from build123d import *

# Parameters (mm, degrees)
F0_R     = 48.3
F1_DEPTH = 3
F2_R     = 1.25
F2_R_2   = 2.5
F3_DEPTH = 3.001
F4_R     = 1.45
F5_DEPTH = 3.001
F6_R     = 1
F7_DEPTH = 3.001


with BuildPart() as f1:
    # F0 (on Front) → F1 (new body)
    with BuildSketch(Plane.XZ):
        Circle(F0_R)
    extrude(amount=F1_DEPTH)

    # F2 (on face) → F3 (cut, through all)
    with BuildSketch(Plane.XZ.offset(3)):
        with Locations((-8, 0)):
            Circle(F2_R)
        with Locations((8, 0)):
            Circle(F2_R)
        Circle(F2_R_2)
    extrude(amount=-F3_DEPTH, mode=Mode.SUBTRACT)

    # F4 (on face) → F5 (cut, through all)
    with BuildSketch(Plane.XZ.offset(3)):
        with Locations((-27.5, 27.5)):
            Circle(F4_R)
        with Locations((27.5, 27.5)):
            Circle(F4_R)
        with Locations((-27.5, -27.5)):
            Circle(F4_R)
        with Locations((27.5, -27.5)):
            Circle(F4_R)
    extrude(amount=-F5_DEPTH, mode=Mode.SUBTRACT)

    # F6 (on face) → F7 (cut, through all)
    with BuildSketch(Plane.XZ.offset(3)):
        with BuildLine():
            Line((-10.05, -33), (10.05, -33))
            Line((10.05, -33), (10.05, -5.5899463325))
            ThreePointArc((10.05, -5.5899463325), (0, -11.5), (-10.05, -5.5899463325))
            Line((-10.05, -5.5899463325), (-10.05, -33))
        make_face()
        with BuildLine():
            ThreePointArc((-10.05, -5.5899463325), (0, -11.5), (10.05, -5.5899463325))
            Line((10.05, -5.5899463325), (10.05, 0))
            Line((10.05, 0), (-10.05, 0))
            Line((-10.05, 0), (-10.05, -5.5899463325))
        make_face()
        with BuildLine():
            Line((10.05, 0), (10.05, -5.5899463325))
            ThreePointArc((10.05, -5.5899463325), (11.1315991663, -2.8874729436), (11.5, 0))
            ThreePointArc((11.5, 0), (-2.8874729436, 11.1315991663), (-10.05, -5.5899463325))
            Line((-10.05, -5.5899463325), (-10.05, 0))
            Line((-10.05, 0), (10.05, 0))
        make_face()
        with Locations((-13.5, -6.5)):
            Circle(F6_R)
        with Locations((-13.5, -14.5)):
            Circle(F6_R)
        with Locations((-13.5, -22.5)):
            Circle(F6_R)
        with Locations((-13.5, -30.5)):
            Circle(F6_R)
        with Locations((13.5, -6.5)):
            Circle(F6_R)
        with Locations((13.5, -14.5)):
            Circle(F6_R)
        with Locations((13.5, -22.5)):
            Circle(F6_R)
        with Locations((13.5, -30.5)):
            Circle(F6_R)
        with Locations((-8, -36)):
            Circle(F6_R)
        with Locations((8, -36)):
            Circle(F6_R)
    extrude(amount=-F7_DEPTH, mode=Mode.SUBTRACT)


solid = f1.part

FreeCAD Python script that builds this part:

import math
import FreeCAD as App
import Part
import Sketcher
from FreeCAD import Vector
Q = App.Units.Quantity

doc = App.newDocument("Part")
body = doc.addObject("PartDesign::Body", "Body")

sketch1 = body.newObject("Sketcher::SketchObject", "Sketch")
sketch1.AttachmentSupport = (doc.getObject("XZ_Plane"), [""])
sketch1.MapMode = "FlatFace"
sketch1.addGeometry(Part.Circle(Vector(0, 0, 0), Vector(0, 0, 1), 48.3), False)
sketch1.addConstraint([
    Sketcher.Constraint("Coincident", 0, 3, -1, 1),
    Sketcher.Constraint("Diameter", 0, Q("96.6 mm")),
])
pad1 = body.newObject("PartDesign::Pad", "Pad")
pad1.Profile = sketch1
pad1.Length = 3

sketch2 = body.newObject("Sketcher::SketchObject", "Sketch001")
sketch2.AttachmentSupport = (doc.getObject("XZ_Plane"), [""])
sketch2.MapMode = "FlatFace"
sketch2.AttachmentOffset = App.Placement(Vector(0, 0, 3), App.Rotation())
sketch2.addGeometry([
    Part.Circle(Vector(-8, 0, 0), Vector(0, 0, 1), 1.25),
    Part.Circle(Vector(8, 0, 0), Vector(0, 0, 1), 1.25),
    Part.Circle(Vector(0, 0, 0), Vector(0, 0, 1), 2.5),
], False)
sketch2.addConstraint([
    Sketcher.Constraint("Coincident", 2, 3, -1, 1),
    Sketcher.Constraint("Equal", 0, 1),
    Sketcher.Constraint("Symmetric", 0, 3, 1, 3, -1, 1),
    Sketcher.Constraint("PointOnObject", 0, 3, -1),
    Sketcher.Constraint("Diameter", 2, Q("5 mm")),
    Sketcher.Constraint("Diameter", 0, Q("2.5 mm")),
    Sketcher.Constraint("DistanceX", 0, 3, -1, 1, Q("8 mm")),
])
pocket1 = body.newObject("PartDesign::Pocket", "Pocket")
pocket1.Profile = sketch2
pocket1.Type = "ThroughAll"

sketch3 = body.newObject("Sketcher::SketchObject", "Sketch002")
sketch3.AttachmentSupport = (doc.getObject("XZ_Plane"), [""])
sketch3.MapMode = "FlatFace"
sketch3.AttachmentOffset = App.Placement(Vector(0, 0, 3), App.Rotation())
sketch3.addGeometry([
    Part.Circle(Vector(-27.5, 27.5, 0), Vector(0, 0, 1), 1.45),
    Part.Circle(Vector(27.5, 27.5, 0), Vector(0, 0, 1), 1.45),
    Part.Circle(Vector(-27.5, -27.5, 0), Vector(0, 0, 1), 1.45),
    Part.Circle(Vector(27.5, -27.5, 0), Vector(0, 0, 1), 1.45),
], False)
sketch3.addConstraint([
    Sketcher.Constraint("Equal", 0, 1),
    Sketcher.Constraint("Equal", 1, 2),
    Sketcher.Constraint("Equal", 2, 3),
    Sketcher.Constraint("Symmetric", 1, 3, 2, 3, -1, 1),
    Sketcher.Constraint("Symmetric", 0, 3, 3, 3, -1, 1),
    Sketcher.Constraint("Symmetric", 0, 3, 1, 3, -2),
    Sketcher.Constraint("Diameter", 0, Q("2.9 mm")),
    Sketcher.Constraint("DistanceX", 0, 3, 1, 3, Q("55 mm")),
    Sketcher.Constraint("DistanceY", 2, 3, 0, 3, Q("55 mm")),
])
pocket2 = body.newObject("PartDesign::Pocket", "Pocket001")
pocket2.Profile = sketch3
pocket2.Type = "ThroughAll"

sketch4 = body.newObject("Sketcher::SketchObject", "Sketch003")
sketch4.AttachmentSupport = (doc.getObject("XZ_Plane"), [""])
sketch4.MapMode = "FlatFace"
sketch4.AttachmentOffset = App.Placement(Vector(0, 0, 3), App.Rotation())
sketch4.addGeometry([
    Part.LineSegment(Vector(-10.05, -33, 0), Vector(10.05, -33, 0)),
    Part.LineSegment(Vector(10.05, -33, 0), Vector(10.05, -5.589946, 0)),
    Part.ArcOfCircle(Part.Circle(Vector(0, 0, 0), Vector(0, 0, 1), 11.5), math.radians(-29.083405), math.radians(0)),
    Part.ArcOfCircle(Part.Circle(Vector(0, 0, 0), Vector(0, 0, 1), 11.5), math.radians(0), math.radians(209.083405)),
    Part.LineSegment(Vector(-10.05, -5.589946, 0), Vector(-10.05, -33, 0)),
    Part.Circle(Vector(-13.5, -6.5, 0), Vector(0, 0, 1), 1),
    Part.Circle(Vector(-13.5, -14.5, 0), Vector(0, 0, 1), 1),
    Part.Circle(Vector(-13.5, -22.5, 0), Vector(0, 0, 1), 1),
    Part.Circle(Vector(-13.5, -30.5, 0), Vector(0, 0, 1), 1),
    Part.Circle(Vector(13.5, -6.5, 0), Vector(0, 0, 1), 1),
    Part.Circle(Vector(13.5, -14.5, 0), Vector(0, 0, 1), 1),
    Part.Circle(Vector(13.5, -22.5, 0), Vector(0, 0, 1), 1),
    Part.Circle(Vector(13.5, -30.5, 0), Vector(0, 0, 1), 1),
    Part.Circle(Vector(-8, -36, 0), Vector(0, 0, 1), 1),
    Part.Circle(Vector(8, -36, 0), Vector(0, 0, 1), 1),
], False)
sketch4.addConstraint([
    Sketcher.Constraint("Coincident", 0, 2, 1, 1),
    Sketcher.Constraint("Coincident", 1, 2, 2, 1),
    Sketcher.Constraint("Tangent", 2, 2, 3, 1),
    Sketcher.Constraint("Coincident", 3, 2, 4, 1),
    Sketcher.Constraint("Coincident", 4, 2, 0, 1),
    Sketcher.Constraint("Horizontal", 0),
    Sketcher.Constraint("Vertical", 1),
    Sketcher.Constraint("Vertical", 4),
    Sketcher.Constraint("Coincident", 2, 3, -1, 1),
    Sketcher.Constraint("Equal", 2, 3),
    Sketcher.Constraint("Equal", 5, 6),
    Sketcher.Constraint("Equal", 6, 7),
    Sketcher.Constraint("Equal", 7, 8),
    Sketcher.Constraint("Equal", 8, 9),
    Sketcher.Constraint("Equal", 9, 10),
    Sketcher.Constraint("Equal", 10, 11),
    Sketcher.Constraint("Equal", 11, 12),
    Sketcher.Constraint("Equal", 12, 13),
    Sketcher.Constraint("Equal", 13, 14),
    Sketcher.Constraint("Symmetric", 5, 3, 9, 3, -2),
    Sketcher.Constraint("Symmetric", 6, 3, 10, 3, -2),
    Sketcher.Constraint("Symmetric", 7, 3, 11, 3, -2),
    Sketcher.Constraint("Symmetric", 8, 3, 12, 3, -2),
    Sketcher.Constraint("Symmetric", 13, 3, 14, 3, -2),
    Sketcher.Constraint("PointOnObject", 2, 2, -1),
    Sketcher.Constraint("Horizontal", 1, 2, 3, 2),
    Sketcher.Constraint("Vertical", 5, 3, 6, 3),
    Sketcher.Constraint("Vertical", 6, 3, 7, 3),
    Sketcher.Constraint("Vertical", 7, 3, 8, 3),
    Sketcher.Constraint("Diameter", 5, Q("2 mm")),
    Sketcher.Constraint("Radius", 2, Q("11.5 mm")),
    Sketcher.Constraint("DistanceX", 0, 1, 0, 2, Q("20.1 mm")),
    Sketcher.Constraint("DistanceX", 13, 3, -1, 1, Q("8 mm")),
    Sketcher.Constraint("DistanceY", 13, 3, -1, 1, Q("36 mm")),
    Sketcher.Constraint("DistanceY", 0, 2, -1, 1, Q("33 mm")),
    Sketcher.Constraint("DistanceY", 6, 3, 5, 3, Q("8 mm")),
    Sketcher.Constraint("DistanceY", 7, 3, 6, 3, Q("8 mm")),
    Sketcher.Constraint("DistanceY", 8, 3, 7, 3, Q("8 mm")),
    Sketcher.Constraint("DistanceX", 5, 3, 9, 3, Q("27 mm")),
    Sketcher.Constraint("DistanceY", 5, 3, -1, 1, Q("6.5 mm")),
])
pocket3 = body.newObject("PartDesign::Pocket", "Pocket002")
pocket3.Profile = sketch4
pocket3.Type = "ThroughAll"

doc.recompute()
